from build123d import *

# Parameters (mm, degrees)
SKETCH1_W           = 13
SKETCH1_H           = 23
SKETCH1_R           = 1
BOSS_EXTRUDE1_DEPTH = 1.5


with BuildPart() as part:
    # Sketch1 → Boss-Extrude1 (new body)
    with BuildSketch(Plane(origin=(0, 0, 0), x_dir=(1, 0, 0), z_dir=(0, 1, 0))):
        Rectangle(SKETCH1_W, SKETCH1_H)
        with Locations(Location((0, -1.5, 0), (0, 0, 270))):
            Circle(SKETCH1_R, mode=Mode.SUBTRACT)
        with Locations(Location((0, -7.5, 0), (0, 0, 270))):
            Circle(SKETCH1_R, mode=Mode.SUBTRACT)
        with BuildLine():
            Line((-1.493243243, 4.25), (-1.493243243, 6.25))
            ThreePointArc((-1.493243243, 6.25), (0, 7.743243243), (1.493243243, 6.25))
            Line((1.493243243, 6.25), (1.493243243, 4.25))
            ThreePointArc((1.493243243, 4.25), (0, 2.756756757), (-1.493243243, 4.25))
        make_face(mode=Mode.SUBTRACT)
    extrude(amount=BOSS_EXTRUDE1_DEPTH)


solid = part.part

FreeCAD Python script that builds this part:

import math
import FreeCAD as App
import Part
import Sketcher
from FreeCAD import Vector
Q = App.Units.Quantity

doc = App.newDocument("Part")
body = doc.addObject("PartDesign::Body", "Body")

sketch1 = doc.addObject("Sketcher::SketchObject", "Sketch")
body.addObject(sketch1)
sketch1.AttachmentSupport = (doc.XZ_Plane, [""])
sketch1.MapMode = "FlatFace"
sketch1.addGeometry([
    Part.LineSegment(Vector(-6.5, -11.5, 0), Vector(-6.5, 11.5, 0)),
    Part.LineSegment(Vector(-6.5, 11.5, 0), Vector(6.5, 11.5, 0)),
    Part.LineSegment(Vector(6.5, 11.5, 0), Vector(6.5, -11.5, 0)),
    Part.LineSegment(Vector(6.5, -11.5, 0), Vector(-6.5, -11.5, 0)),
    Part.Circle(Vector(0, 7.5, 0), Vector(0, 0, 1), 1),
    Part.Circle(Vector(0, 1.5, 0), Vector(0, 0, 1), 1),
    Part.ArcOfCircle(Part.Circle(Vector(0, -4.2, 0), Vector(0, 0, 1), 1.5), math.radians(0), math.radians(180)),
    Part.LineSegment(Vector(-1.5, -4.2, 0), Vector(-1.5, -6.2, 0)),
    Part.ArcOfCircle(Part.Circle(Vector(0, -6.2, 0), Vector(0, 0, 1), 1.5), math.radians(180), math.radians(360)),
    Part.LineSegment(Vector(1.5, -6.2, 0), Vector(1.5, -4.2, 0)),
], False)
sketch1.addConstraint([
    Sketcher.Constraint("Coincident", 0, 2, 1, 1),
    Sketcher.Constraint("Coincident", 1, 2, 2, 1),
    Sketcher.Constraint("Coincident", 2, 2, 3, 1),
    Sketcher.Constraint("Coincident", 3, 2, 0, 1),
    Sketcher.Constraint("Tangent", 6, 2, 7, 1),
    Sketcher.Constraint("Tangent", 7, 2, 8, 1),
    Sketcher.Constraint("Tangent", 8, 2, 9, 1),
    Sketcher.Constraint("Tangent", 9, 2, 6, 1),
    Sketcher.Constraint("Vertical", 0),
    Sketcher.Constraint("Horizontal", 1),
    Sketcher.Constraint("Vertical", 2),
    Sketcher.Constraint("Horizontal", 3),
    Sketcher.Constraint("Vertical", 7),
    Sketcher.Constraint("Vertical", 9),
    Sketcher.Constraint("Equal", 4, 5),
    Sketcher.Constraint("Symmetric", 0, 2, 2, 2, -1, 1),
    Sketcher.Constraint("PointOnObject", 4, 3, -2),
    Sketcher.Constraint("PointOnObject", 5, 3, -2),
    Sketcher.Constraint("PointOnObject", 6, 3, -2),
    Sketcher.Constraint("Diameter", 4, Q("2 mm")),
    Sketcher.Constraint("DistanceX", 1, 1, 1, 2, Q("13 mm")),
    Sketcher.Constraint("DistanceY", 0, 1, 0, 2, Q("23 mm")),
    Sketcher.Constraint("DistanceY", 7, 2, 7, 1, Q("2 mm")),
    Sketcher.Constraint("DistanceY", 5, 3, 4, 3, Q("6 mm")),
    Sketcher.Constraint("DistanceY", 4, 3, 0, 2, Q("4 mm")),
    Sketcher.Constraint("DistanceY", 6, 3, -1, 1, Q("4.25 mm")),
    Sketcher.Constraint("Radius", 6, Q("1.493243 mm")),
])
pad1 = doc.addObject("PartDesign::Pad", "Pad")
body.addObject(pad1)
pad1.Profile = sketch1
pad1.Length = 1.5
pad1.Reversed = True

doc.recompute()
